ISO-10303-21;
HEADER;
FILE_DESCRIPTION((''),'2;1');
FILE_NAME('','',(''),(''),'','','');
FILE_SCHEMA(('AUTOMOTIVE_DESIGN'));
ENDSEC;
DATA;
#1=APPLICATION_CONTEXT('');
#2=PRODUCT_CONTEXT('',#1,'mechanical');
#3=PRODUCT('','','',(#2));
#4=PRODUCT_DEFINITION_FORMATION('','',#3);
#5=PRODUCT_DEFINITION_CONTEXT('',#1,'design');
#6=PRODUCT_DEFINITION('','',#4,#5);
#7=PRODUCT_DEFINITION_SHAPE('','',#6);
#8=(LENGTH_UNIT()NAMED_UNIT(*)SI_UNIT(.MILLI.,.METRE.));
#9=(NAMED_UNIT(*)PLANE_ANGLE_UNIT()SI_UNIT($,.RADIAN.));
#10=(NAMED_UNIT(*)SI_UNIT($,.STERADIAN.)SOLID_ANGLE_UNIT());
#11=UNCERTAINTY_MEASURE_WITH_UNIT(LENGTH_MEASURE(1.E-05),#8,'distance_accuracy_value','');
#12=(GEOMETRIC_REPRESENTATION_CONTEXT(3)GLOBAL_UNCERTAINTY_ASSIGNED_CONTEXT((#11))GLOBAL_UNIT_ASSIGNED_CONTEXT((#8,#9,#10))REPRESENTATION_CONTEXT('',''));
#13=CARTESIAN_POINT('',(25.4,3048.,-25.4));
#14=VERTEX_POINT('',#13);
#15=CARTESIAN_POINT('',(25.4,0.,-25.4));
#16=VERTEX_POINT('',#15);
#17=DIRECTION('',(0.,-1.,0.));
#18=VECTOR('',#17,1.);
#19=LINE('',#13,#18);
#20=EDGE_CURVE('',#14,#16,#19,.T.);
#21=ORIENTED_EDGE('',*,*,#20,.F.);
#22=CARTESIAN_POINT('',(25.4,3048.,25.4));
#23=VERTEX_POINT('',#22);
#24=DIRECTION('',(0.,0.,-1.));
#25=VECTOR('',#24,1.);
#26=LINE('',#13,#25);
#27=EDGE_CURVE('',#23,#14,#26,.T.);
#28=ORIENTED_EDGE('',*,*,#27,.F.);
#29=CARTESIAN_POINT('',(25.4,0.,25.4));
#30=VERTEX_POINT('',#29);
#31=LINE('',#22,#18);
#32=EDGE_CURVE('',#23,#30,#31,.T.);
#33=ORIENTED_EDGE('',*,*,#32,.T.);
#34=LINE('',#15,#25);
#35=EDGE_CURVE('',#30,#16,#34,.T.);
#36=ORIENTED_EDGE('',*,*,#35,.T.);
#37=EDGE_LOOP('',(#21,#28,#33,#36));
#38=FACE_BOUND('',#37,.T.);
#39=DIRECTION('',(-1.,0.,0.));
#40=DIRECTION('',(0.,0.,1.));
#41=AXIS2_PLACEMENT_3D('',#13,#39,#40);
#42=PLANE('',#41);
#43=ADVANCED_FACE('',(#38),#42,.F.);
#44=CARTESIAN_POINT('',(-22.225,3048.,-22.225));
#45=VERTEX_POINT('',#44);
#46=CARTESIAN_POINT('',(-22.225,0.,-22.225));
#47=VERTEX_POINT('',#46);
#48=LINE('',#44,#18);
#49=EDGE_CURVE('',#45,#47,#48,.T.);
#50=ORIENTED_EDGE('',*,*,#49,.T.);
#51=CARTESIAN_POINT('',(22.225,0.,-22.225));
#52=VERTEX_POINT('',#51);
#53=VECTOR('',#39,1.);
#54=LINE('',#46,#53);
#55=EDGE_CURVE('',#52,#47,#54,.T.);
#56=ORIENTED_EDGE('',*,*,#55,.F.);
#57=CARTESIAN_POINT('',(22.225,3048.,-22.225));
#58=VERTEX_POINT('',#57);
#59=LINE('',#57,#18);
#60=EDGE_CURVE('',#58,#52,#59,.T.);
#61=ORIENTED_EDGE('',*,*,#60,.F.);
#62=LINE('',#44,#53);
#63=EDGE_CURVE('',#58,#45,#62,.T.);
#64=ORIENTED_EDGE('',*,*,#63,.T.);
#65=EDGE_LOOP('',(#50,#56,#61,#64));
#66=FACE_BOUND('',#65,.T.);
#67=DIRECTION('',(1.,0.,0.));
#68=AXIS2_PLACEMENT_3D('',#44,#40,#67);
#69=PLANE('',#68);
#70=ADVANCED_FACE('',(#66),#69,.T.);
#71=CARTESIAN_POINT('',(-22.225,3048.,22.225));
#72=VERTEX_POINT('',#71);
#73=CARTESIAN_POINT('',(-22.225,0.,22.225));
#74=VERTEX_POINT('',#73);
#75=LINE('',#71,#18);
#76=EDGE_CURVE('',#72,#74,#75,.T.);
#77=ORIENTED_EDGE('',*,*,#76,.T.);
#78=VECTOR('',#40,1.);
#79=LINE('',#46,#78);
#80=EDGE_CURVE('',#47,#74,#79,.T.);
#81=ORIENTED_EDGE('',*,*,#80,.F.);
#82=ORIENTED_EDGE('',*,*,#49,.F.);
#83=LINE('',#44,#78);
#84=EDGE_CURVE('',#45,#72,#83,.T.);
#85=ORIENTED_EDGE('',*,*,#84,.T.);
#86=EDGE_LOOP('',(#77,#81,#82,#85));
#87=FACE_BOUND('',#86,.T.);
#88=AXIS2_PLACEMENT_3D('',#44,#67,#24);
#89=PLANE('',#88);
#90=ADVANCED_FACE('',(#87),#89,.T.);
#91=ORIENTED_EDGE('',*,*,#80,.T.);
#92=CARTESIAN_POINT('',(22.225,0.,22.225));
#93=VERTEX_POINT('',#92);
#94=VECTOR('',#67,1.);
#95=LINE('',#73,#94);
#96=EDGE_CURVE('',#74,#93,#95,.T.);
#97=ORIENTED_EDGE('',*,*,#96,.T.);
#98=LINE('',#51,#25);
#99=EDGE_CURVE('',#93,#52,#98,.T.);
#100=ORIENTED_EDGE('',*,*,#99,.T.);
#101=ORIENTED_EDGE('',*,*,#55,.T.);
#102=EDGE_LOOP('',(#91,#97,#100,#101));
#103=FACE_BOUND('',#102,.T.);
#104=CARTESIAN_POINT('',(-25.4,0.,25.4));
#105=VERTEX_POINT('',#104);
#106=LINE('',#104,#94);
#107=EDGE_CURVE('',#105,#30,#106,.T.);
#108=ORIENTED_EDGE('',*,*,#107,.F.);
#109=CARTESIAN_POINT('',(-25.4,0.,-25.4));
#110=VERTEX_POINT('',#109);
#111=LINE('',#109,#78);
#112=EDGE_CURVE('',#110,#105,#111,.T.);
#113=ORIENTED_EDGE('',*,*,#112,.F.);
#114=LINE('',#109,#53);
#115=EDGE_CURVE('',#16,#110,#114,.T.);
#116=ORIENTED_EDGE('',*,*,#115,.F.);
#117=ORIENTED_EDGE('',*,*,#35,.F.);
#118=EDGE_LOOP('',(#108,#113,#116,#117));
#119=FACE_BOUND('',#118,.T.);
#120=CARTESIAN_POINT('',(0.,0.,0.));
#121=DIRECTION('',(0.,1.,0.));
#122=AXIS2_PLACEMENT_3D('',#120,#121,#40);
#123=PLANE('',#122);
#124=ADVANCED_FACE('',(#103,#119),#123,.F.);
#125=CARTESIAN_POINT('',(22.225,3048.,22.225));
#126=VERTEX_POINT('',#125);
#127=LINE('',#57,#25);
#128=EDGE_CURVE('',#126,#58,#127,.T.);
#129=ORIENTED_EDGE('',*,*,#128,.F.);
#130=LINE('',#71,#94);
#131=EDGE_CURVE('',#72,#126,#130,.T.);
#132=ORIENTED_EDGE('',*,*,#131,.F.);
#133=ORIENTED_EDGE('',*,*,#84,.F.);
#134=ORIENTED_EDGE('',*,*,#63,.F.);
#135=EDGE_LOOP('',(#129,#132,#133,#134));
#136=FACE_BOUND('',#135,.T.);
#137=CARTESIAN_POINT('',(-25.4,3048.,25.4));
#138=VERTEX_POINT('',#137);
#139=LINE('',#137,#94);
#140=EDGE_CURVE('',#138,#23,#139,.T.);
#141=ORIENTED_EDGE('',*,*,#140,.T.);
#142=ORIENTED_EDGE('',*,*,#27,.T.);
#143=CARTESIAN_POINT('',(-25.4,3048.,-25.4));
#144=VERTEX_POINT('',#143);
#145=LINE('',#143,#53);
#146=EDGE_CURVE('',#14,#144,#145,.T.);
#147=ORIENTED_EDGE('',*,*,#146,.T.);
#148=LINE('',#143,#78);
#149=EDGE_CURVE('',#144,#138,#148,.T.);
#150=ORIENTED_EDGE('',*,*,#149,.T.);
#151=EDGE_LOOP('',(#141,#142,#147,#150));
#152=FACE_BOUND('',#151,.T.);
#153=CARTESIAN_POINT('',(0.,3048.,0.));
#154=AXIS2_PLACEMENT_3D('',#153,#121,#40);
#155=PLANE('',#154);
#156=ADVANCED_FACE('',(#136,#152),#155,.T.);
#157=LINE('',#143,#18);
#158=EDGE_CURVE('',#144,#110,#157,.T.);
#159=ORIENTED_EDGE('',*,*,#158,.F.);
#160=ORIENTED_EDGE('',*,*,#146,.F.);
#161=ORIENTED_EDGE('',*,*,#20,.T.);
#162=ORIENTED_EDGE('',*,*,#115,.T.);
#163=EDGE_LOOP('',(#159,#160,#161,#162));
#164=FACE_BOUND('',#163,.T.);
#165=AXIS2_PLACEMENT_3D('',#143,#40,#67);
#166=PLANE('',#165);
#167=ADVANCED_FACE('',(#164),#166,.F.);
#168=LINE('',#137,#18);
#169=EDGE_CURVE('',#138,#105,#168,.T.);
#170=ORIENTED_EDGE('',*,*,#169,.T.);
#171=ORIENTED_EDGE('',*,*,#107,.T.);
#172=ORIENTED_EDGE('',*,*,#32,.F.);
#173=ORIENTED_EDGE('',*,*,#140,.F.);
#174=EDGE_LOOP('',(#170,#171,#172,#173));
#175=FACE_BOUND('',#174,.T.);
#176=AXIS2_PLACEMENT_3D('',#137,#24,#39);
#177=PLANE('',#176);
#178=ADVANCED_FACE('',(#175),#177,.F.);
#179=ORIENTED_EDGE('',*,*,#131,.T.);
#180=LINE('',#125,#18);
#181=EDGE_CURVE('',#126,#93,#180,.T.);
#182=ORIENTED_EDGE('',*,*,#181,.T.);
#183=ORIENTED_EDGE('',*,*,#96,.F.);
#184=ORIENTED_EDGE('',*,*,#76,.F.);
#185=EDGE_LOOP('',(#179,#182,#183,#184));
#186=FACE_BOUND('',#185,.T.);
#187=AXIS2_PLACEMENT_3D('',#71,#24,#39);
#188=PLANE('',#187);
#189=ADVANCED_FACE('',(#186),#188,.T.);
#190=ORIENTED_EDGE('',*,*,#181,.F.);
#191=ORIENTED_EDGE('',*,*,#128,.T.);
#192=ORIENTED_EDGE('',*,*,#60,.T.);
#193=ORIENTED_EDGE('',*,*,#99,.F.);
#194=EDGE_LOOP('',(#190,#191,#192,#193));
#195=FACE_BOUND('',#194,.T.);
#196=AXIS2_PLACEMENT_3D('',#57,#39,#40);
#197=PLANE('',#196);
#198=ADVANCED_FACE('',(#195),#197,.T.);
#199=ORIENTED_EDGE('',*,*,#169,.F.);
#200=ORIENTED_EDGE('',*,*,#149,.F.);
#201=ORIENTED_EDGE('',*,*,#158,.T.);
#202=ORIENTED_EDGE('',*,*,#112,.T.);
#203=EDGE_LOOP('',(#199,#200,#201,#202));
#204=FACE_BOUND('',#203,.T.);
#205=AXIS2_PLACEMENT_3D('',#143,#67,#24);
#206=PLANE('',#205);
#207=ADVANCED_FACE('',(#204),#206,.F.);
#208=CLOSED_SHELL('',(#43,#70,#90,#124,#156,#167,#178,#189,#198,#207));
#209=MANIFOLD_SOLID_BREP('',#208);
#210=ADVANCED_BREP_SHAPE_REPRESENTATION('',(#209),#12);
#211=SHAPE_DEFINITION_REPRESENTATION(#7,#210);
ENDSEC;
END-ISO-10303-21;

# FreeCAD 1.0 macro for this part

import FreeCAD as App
import Part
import Sketcher

V = App.Vector
Q = App.Units.Quantity


def add_polygon(sketch, points):
    """Adds a closed chain of lines whose ends are joined by coincident constraints."""
    first, n = sketch.GeometryCount, len(points)
    for a, b in zip(points, points[1:] + points[:1]):
        sketch.addGeometry(Part.LineSegment(App.Vector(*a, 0), App.Vector(*b, 0)), False)
    for i in range(n):
        sketch.addConstraint(Sketcher.Constraint("Coincident", first + i, 2, first + (i + 1) % n, 1))

doc = App.newDocument("Part")
params = doc.addObject("Spreadsheet::Sheet", "Params")
for row, (alias, value) in enumerate([
    ("sketch1_width", "2 in"),
    ("sketch1_width2", "1.75 in"),
    ("pad1_length", "120 in"),
], start=1):
    params.set(f"A{row}", alias)
    params.set(f"B{row}", "=" + value)
    params.setAlias(f"B{row}", alias)

body = doc.addObject("PartDesign::Body", "Body")

sketch1 = doc.addObject("Sketcher::SketchObject", "Sketch")
body.addObject(sketch1)
sketch1.AttachmentSupport = (doc.XZ_Plane, [""])
sketch1.MapMode = "FlatFace"
add_polygon(sketch1, [(-25, -25), (-25, 25), (25, 25), (25, -25)])
add_polygon(sketch1, [(22, 22), (-22, 22), (-22, -22), (22, -22)])
sketch1.addConstraint([
    Sketcher.Constraint("Vertical", 0),
    Sketcher.Constraint("Horizontal", 1),
    Sketcher.Constraint("Vertical", 2),
    Sketcher.Constraint("Horizontal", 3),
    Sketcher.Constraint("Horizontal", 4),
    Sketcher.Constraint("Vertical", 5),
    Sketcher.Constraint("Horizontal", 6),
    Sketcher.Constraint("Vertical", 7),
    Sketcher.Constraint("Symmetric", 0, 2, 2, 2, -1, 1),
    Sketcher.Constraint("Symmetric", 4, 2, 6, 2, -1, 1),
    Sketcher.Constraint("Equal", 3, 0),
    Sketcher.Constraint("Equal", 6, 5),
    Sketcher.Constraint("DistanceX", 1, 1, 1, 2, Q("2 in")),
    Sketcher.Constraint("DistanceX", 4, 2, 4, 1, Q("1.75 in")),
])
sketch1.setExpression("Constraints[20]", "Params.sketch1_width")
sketch1.setExpression("Constraints[21]", "Params.sketch1_width2")
pad1 = doc.addObject("PartDesign::Pad", "Pad")
body.addObject(pad1)
pad1.Profile = sketch1
pad1.setExpression("Length", "Params.pad1_length")
pad1.Reversed = True

doc.recompute()
